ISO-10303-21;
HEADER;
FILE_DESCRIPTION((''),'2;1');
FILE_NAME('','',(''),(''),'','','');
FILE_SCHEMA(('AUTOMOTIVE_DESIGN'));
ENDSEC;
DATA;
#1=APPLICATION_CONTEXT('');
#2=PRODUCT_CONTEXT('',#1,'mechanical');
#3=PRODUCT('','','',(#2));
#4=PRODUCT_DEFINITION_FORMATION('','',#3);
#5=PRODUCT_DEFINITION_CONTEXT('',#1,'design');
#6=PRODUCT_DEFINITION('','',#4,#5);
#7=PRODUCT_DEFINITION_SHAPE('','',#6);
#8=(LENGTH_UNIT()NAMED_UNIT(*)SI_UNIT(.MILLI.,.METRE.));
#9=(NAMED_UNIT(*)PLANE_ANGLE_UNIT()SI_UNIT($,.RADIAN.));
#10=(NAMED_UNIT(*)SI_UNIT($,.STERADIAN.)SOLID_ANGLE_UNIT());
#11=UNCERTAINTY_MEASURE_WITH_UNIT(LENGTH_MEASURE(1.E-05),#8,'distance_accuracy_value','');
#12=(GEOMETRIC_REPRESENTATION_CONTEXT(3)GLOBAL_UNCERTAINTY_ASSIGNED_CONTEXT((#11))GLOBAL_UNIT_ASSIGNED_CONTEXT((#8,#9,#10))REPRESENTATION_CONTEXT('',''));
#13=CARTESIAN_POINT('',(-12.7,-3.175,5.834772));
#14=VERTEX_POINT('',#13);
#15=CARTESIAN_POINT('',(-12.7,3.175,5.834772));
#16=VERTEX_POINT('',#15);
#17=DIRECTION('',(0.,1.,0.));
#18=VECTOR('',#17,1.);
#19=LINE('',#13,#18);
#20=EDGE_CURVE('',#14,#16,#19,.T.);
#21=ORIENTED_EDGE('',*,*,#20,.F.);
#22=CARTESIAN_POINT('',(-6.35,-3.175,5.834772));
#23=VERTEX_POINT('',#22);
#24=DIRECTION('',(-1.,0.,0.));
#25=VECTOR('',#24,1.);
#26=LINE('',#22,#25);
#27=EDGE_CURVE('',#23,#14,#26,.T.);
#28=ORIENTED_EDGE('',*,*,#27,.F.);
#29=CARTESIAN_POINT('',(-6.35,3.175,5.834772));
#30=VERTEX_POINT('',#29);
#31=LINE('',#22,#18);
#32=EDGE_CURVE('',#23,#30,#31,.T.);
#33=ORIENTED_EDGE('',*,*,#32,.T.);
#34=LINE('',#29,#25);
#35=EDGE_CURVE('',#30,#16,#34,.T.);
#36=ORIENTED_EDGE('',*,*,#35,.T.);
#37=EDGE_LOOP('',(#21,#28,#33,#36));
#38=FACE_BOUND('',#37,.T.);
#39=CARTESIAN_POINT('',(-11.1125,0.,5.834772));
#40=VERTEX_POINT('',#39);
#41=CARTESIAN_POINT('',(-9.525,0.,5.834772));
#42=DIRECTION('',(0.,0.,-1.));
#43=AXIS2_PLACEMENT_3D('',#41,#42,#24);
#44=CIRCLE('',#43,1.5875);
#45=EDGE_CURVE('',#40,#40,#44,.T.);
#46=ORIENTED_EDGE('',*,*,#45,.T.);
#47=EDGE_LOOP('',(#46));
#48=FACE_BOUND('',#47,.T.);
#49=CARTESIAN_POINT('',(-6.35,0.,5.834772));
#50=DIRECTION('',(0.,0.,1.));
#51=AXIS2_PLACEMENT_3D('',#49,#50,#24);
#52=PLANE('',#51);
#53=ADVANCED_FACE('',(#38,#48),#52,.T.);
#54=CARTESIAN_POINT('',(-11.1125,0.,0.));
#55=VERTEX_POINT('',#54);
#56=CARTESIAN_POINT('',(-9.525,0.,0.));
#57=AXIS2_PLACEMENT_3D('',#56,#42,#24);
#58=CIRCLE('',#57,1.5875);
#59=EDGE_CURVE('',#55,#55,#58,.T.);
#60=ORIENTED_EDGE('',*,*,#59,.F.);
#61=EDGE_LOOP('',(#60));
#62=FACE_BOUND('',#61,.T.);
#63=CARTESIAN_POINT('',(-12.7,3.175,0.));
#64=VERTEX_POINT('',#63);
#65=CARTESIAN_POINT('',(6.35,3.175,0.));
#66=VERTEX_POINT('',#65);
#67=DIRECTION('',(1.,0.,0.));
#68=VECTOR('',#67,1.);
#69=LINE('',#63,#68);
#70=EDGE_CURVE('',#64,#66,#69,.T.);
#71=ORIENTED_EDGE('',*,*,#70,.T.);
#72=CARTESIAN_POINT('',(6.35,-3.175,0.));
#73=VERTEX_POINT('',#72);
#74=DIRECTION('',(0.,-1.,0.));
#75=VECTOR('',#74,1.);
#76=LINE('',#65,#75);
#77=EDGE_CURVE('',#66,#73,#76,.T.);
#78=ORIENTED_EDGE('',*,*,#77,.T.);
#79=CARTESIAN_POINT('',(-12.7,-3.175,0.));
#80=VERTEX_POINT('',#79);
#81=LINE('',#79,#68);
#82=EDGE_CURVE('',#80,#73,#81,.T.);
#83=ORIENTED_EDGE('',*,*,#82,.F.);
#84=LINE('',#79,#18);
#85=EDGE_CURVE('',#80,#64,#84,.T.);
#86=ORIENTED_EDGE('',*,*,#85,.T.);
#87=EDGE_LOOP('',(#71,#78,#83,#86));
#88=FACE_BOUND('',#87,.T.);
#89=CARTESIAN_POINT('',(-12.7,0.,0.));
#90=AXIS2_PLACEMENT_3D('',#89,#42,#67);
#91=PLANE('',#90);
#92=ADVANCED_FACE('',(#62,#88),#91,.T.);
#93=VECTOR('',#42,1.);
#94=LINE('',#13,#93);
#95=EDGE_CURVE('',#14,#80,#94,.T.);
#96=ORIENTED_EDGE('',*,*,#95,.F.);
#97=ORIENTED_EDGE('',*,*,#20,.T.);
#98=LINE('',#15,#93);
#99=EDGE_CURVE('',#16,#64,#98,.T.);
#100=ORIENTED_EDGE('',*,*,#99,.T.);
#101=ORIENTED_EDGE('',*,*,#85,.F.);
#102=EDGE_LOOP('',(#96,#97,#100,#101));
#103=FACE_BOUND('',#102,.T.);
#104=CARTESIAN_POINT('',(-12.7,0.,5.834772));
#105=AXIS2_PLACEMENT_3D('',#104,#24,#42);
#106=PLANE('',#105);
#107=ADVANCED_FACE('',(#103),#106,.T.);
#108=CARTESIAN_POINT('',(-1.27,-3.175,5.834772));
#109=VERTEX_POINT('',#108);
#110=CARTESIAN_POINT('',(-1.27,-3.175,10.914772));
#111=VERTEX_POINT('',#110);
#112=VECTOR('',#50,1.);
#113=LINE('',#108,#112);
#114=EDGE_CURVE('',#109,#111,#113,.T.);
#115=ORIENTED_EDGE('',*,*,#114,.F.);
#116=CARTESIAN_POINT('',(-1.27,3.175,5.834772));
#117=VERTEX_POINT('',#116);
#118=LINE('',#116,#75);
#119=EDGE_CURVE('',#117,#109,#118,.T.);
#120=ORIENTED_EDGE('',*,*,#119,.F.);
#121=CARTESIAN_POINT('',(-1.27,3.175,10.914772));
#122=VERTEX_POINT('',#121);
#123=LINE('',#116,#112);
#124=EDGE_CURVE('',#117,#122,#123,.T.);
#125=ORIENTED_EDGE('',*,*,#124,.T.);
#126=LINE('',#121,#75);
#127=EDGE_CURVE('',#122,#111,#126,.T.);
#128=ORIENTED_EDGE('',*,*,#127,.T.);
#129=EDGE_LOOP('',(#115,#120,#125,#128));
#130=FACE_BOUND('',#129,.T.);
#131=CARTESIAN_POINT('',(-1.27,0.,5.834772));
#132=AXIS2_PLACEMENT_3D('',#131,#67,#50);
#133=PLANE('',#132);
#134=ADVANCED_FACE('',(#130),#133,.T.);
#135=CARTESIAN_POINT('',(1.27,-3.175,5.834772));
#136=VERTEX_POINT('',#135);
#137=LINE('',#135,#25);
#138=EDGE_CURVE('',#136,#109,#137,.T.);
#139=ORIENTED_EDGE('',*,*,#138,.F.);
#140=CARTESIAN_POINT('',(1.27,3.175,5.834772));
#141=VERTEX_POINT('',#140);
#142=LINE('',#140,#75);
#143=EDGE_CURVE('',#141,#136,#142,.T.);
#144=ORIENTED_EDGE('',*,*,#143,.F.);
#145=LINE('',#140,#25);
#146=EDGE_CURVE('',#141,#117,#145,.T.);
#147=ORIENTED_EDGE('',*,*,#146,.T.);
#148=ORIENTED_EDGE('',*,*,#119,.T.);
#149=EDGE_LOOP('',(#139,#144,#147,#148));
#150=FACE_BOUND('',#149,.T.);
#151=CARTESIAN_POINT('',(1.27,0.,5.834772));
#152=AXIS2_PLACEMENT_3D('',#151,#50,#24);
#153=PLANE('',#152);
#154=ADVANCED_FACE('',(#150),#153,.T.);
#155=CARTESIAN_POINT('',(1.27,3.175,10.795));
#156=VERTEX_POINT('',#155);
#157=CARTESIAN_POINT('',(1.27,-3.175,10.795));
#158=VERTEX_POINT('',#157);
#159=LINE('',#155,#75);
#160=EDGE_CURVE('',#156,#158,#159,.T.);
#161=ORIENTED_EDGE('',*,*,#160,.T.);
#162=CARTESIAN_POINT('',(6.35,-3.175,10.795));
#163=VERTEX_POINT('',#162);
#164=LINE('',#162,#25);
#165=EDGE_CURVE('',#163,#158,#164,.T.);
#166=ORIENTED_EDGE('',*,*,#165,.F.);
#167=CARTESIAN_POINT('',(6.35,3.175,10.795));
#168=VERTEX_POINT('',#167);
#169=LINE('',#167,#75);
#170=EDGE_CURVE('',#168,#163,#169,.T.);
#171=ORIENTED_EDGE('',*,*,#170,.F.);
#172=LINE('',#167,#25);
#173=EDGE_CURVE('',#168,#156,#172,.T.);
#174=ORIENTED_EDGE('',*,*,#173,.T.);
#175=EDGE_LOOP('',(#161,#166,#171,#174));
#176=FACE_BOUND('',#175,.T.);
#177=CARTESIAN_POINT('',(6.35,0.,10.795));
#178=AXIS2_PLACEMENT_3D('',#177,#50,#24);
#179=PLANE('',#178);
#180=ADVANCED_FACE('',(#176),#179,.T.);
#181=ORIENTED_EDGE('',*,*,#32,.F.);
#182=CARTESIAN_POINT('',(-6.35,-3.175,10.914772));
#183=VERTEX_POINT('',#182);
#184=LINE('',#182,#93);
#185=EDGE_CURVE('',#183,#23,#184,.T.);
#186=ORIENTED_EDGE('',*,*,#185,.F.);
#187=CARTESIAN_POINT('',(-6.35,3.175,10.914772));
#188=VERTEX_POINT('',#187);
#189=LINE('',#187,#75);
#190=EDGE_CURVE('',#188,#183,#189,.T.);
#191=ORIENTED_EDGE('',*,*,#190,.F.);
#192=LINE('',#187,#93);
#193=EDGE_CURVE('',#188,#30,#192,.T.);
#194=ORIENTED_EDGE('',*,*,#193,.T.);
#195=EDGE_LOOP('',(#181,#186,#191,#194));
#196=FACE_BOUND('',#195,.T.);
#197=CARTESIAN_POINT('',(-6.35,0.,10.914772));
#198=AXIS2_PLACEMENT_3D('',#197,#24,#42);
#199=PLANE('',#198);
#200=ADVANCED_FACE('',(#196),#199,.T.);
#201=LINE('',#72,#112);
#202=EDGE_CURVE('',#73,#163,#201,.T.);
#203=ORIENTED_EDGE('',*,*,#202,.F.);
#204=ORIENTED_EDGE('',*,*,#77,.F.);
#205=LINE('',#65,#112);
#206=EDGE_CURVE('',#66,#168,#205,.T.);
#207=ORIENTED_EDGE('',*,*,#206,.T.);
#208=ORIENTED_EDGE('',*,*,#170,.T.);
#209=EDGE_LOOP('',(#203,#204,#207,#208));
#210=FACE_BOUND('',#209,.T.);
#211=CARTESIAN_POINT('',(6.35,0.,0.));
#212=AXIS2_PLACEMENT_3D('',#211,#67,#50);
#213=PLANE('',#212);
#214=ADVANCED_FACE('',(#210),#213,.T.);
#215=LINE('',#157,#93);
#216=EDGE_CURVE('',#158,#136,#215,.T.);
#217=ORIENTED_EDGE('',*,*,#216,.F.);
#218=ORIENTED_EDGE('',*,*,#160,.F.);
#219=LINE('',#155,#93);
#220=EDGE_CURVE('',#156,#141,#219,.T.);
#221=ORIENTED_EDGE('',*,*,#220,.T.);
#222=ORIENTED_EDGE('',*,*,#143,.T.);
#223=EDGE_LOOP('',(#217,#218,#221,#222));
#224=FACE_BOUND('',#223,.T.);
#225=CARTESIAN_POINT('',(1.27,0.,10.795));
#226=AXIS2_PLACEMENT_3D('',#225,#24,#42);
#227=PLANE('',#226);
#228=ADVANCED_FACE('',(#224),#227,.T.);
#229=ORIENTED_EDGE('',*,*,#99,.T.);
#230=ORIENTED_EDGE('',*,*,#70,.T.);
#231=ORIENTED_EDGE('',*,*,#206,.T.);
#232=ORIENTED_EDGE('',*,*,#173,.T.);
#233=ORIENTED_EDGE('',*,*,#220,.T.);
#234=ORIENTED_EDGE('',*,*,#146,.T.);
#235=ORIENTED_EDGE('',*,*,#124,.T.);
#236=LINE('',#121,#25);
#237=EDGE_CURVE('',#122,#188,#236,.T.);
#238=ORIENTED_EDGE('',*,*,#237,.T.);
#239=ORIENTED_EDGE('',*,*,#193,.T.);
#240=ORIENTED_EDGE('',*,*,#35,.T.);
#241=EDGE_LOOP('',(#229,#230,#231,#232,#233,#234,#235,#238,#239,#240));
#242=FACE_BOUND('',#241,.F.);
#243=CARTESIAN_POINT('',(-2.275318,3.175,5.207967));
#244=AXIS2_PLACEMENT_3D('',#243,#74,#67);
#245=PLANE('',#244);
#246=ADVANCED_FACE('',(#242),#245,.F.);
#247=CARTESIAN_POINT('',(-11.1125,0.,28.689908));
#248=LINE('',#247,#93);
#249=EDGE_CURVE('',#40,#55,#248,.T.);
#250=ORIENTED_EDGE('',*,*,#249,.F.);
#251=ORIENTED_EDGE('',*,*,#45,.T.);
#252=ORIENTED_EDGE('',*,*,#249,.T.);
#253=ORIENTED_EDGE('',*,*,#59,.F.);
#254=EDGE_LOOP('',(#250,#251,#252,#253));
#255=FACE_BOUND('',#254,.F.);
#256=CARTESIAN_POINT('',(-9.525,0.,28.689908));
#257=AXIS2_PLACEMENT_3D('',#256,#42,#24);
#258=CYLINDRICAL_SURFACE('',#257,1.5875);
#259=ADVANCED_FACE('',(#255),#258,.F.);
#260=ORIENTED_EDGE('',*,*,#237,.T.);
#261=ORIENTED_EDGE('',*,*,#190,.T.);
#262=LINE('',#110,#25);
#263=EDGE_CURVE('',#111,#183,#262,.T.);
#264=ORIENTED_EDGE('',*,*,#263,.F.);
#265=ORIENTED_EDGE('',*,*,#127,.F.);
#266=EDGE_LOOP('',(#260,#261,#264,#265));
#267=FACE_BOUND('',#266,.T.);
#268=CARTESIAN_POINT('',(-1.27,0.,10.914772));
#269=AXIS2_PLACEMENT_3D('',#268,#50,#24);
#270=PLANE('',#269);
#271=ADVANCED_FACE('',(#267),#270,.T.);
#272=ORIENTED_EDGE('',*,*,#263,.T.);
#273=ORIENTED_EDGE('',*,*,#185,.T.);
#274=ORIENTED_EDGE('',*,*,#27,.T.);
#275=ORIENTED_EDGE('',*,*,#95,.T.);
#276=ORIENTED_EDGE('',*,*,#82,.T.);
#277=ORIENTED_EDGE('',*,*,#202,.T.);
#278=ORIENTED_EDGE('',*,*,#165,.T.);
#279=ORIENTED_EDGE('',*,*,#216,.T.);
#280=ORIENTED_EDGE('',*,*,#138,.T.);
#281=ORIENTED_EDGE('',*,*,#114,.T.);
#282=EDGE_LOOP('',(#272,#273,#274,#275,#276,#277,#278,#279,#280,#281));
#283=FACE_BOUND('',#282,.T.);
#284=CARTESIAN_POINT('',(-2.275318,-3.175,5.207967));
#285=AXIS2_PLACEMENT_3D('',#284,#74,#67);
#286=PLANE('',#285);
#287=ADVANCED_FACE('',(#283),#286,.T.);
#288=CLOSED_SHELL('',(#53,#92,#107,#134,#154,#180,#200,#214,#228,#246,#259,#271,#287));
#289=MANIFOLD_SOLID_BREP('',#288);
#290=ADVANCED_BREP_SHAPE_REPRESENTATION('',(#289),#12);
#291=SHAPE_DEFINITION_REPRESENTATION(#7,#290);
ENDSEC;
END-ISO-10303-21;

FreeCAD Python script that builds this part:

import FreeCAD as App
import Part
import Sketcher
from FreeCAD import Vector
Q = App.Units.Quantity

doc = App.newDocument("Part")
params = doc.addObject("Spreadsheet::Sheet", "Params")
for row, (alias, value) in enumerate([
    ("sketch1_width", "0.2 in"),
    ("sketch1_width2", "0.1 in"),
    ("sketch1_width3", "0.75 in"),
    ("sketch1_height", "0.425 in"),
    ("pad1_length", "0.25 in"),
    ("sketch2_diameter", "0.125 in"),
    ("hole_diameter", "0.125 in"),
], start=1):
    params.set(f"A{row}", alias)
    params.set(f"B{row}", "=" + value)
    params.setAlias(f"B{row}", alias)

body = doc.addObject("PartDesign::Body", "Body")

# Sketch on XZ plane
sketch1 = body.newObject("Sketcher::SketchObject", "Sketch")
sketch1.AttachmentSupport = (doc.getObject("XZ_Plane"), [""])
sketch1.MapMode = "FlatFace"
sketch1.addGeometry(Part.LineSegment(Vector(-12.7, 0, 0), Vector(6.3, 0, 0)), False)
sketch1.addGeometry(Part.LineSegment(Vector(6.3, 0, 0), Vector(6.3, 10.8, 0)), False)
sketch1.addGeometry(Part.LineSegment(Vector(6.3, 10.8, 0), Vector(1.3, 10.8, 0)), False)
sketch1.addGeometry(Part.LineSegment(Vector(1.3, 10.8, 0), Vector(1.3, 5.8, 0)), False)
sketch1.addGeometry(Part.LineSegment(Vector(1.3, 5.8, 0), Vector(-1.3, 5.8, 0)), False)
sketch1.addGeometry(Part.LineSegment(Vector(-1.3, 5.8, 0), Vector(-1.3, 10.9, 0)), False)
sketch1.addGeometry(Part.LineSegment(Vector(-1.3, 10.9, 0), Vector(-6.3, 10.9, 0)), False)
sketch1.addGeometry(Part.LineSegment(Vector(-6.3, 10.9, 0), Vector(-6.3, 5.8, 0)), False)
sketch1.addGeometry(Part.LineSegment(Vector(-6.3, 5.8, 0), Vector(-12.7, 5.8, 0)), False)
sketch1.addGeometry(Part.LineSegment(Vector(-12.7, 5.8, 0), Vector(-12.7, 0, 0)), False)
sketch1.addConstraint(Sketcher.Constraint("Coincident", 0, 2, 1, 1))
sketch1.addConstraint(Sketcher.Constraint("Coincident", 1, 2, 2, 1))
sketch1.addConstraint(Sketcher.Constraint("Coincident", 2, 2, 3, 1))
sketch1.addConstraint(Sketcher.Constraint("Coincident", 3, 2, 4, 1))
sketch1.addConstraint(Sketcher.Constraint("Coincident", 4, 2, 5, 1))
sketch1.addConstraint(Sketcher.Constraint("Coincident", 5, 2, 6, 1))
sketch1.addConstraint(Sketcher.Constraint("Coincident", 6, 2, 7, 1))
sketch1.addConstraint(Sketcher.Constraint("Coincident", 7, 2, 8, 1))
sketch1.addConstraint(Sketcher.Constraint("Coincident", 8, 2, 9, 1))
sketch1.addConstraint(Sketcher.Constraint("Coincident", 9, 2, 0, 1))
sketch1.addConstraint(Sketcher.Constraint("Horizontal", 0))
sketch1.addConstraint(Sketcher.Constraint("Vertical", 1))
sketch1.addConstraint(Sketcher.Constraint("Horizontal", 2))
sketch1.addConstraint(Sketcher.Constraint("Vertical", 3))
sketch1.addConstraint(Sketcher.Constraint("Horizontal", 4))
sketch1.addConstraint(Sketcher.Constraint("Vertical", 5))
sketch1.addConstraint(Sketcher.Constraint("Horizontal", 6))
sketch1.addConstraint(Sketcher.Constraint("Vertical", 7))
sketch1.addConstraint(Sketcher.Constraint("Horizontal", 8))
sketch1.addConstraint(Sketcher.Constraint("Vertical", 9))
sketch1.addConstraint(Sketcher.Constraint("PointOnObject", 0, 2, -1))
sketch1.addConstraint(Sketcher.Constraint("Horizontal", 4, 2, 7, 2))
sketch1.addConstraint(Sketcher.Constraint("Equal", 2, 6))
sketch1.addConstraint(Sketcher.Constraint("Equal", 6, 5))
sketch1.addConstraint(Sketcher.Constraint("DistanceX", 2, 2, 2, 1, Q("0.2 in")))
sketch1.addConstraint(Sketcher.Constraint("DistanceX", 4, 2, 4, 1, Q("0.1 in")))
sketch1.addConstraint(Sketcher.Constraint("DistanceX", 0, 1, 0, 2, Q("0.75 in")))
sketch1.addConstraint(Sketcher.Constraint("DistanceX", 8, 2, -1, 1, Q("0.5 in")))
sketch1.addConstraint(Sketcher.Constraint("DistanceY", 1, 1, 1, 2, Q("0.425 in")))
sketch1.addConstraint(Sketcher.Constraint("DistanceY", 3, 2, 3, 1, Q("4.960228 mm")))
sketch1.setExpression("Constraints[24]", "Params.sketch1_width")
sketch1.setExpression("Constraints[25]", "Params.sketch1_width2")
sketch1.setExpression("Constraints[26]", "Params.sketch1_width3")
sketch1.setExpression("Constraints[28]", "Params.sketch1_height")
pad1 = body.newObject("PartDesign::Pad", "Pad")
pad1.Profile = sketch1
pad1.setExpression("Length", "Params.pad1_length")
pad1.Midplane = True

# Sketch on XY plane
sketch2 = body.newObject("Sketcher::SketchObject", "Sketch001")
sketch2.AttachmentSupport = (doc.getObject("XY_Plane"), [""])
sketch2.MapMode = "FlatFace"
sketch2.AttachmentOffset = App.Placement(Vector(0, 0, 5.834772), App.Rotation())
sketch2.addGeometry(Part.Circle(Vector(-9.5, 0, 0), Vector(0, 0, 1), 1.6), False)
sketch2.addConstraint(Sketcher.Constraint("PointOnObject", 0, 3, -1))
sketch2.addConstraint(Sketcher.Constraint("Diameter", 0, Q("0.125 in")))
sketch2.addConstraint(Sketcher.Constraint("DistanceX", 0, 3, -1, 1, Q("0.375 in")))
sketch2.setExpression("Constraints[1]", "Params.sketch2_diameter")
doc.recompute()
hole = body.newObject("PartDesign::Hole", "Hole")
hole.Profile = sketch2
hole.ThreadType = "None"
hole.setExpression("Diameter", "Params.hole_diameter")
hole.DepthType = "ThroughAll"

doc.recompute()
